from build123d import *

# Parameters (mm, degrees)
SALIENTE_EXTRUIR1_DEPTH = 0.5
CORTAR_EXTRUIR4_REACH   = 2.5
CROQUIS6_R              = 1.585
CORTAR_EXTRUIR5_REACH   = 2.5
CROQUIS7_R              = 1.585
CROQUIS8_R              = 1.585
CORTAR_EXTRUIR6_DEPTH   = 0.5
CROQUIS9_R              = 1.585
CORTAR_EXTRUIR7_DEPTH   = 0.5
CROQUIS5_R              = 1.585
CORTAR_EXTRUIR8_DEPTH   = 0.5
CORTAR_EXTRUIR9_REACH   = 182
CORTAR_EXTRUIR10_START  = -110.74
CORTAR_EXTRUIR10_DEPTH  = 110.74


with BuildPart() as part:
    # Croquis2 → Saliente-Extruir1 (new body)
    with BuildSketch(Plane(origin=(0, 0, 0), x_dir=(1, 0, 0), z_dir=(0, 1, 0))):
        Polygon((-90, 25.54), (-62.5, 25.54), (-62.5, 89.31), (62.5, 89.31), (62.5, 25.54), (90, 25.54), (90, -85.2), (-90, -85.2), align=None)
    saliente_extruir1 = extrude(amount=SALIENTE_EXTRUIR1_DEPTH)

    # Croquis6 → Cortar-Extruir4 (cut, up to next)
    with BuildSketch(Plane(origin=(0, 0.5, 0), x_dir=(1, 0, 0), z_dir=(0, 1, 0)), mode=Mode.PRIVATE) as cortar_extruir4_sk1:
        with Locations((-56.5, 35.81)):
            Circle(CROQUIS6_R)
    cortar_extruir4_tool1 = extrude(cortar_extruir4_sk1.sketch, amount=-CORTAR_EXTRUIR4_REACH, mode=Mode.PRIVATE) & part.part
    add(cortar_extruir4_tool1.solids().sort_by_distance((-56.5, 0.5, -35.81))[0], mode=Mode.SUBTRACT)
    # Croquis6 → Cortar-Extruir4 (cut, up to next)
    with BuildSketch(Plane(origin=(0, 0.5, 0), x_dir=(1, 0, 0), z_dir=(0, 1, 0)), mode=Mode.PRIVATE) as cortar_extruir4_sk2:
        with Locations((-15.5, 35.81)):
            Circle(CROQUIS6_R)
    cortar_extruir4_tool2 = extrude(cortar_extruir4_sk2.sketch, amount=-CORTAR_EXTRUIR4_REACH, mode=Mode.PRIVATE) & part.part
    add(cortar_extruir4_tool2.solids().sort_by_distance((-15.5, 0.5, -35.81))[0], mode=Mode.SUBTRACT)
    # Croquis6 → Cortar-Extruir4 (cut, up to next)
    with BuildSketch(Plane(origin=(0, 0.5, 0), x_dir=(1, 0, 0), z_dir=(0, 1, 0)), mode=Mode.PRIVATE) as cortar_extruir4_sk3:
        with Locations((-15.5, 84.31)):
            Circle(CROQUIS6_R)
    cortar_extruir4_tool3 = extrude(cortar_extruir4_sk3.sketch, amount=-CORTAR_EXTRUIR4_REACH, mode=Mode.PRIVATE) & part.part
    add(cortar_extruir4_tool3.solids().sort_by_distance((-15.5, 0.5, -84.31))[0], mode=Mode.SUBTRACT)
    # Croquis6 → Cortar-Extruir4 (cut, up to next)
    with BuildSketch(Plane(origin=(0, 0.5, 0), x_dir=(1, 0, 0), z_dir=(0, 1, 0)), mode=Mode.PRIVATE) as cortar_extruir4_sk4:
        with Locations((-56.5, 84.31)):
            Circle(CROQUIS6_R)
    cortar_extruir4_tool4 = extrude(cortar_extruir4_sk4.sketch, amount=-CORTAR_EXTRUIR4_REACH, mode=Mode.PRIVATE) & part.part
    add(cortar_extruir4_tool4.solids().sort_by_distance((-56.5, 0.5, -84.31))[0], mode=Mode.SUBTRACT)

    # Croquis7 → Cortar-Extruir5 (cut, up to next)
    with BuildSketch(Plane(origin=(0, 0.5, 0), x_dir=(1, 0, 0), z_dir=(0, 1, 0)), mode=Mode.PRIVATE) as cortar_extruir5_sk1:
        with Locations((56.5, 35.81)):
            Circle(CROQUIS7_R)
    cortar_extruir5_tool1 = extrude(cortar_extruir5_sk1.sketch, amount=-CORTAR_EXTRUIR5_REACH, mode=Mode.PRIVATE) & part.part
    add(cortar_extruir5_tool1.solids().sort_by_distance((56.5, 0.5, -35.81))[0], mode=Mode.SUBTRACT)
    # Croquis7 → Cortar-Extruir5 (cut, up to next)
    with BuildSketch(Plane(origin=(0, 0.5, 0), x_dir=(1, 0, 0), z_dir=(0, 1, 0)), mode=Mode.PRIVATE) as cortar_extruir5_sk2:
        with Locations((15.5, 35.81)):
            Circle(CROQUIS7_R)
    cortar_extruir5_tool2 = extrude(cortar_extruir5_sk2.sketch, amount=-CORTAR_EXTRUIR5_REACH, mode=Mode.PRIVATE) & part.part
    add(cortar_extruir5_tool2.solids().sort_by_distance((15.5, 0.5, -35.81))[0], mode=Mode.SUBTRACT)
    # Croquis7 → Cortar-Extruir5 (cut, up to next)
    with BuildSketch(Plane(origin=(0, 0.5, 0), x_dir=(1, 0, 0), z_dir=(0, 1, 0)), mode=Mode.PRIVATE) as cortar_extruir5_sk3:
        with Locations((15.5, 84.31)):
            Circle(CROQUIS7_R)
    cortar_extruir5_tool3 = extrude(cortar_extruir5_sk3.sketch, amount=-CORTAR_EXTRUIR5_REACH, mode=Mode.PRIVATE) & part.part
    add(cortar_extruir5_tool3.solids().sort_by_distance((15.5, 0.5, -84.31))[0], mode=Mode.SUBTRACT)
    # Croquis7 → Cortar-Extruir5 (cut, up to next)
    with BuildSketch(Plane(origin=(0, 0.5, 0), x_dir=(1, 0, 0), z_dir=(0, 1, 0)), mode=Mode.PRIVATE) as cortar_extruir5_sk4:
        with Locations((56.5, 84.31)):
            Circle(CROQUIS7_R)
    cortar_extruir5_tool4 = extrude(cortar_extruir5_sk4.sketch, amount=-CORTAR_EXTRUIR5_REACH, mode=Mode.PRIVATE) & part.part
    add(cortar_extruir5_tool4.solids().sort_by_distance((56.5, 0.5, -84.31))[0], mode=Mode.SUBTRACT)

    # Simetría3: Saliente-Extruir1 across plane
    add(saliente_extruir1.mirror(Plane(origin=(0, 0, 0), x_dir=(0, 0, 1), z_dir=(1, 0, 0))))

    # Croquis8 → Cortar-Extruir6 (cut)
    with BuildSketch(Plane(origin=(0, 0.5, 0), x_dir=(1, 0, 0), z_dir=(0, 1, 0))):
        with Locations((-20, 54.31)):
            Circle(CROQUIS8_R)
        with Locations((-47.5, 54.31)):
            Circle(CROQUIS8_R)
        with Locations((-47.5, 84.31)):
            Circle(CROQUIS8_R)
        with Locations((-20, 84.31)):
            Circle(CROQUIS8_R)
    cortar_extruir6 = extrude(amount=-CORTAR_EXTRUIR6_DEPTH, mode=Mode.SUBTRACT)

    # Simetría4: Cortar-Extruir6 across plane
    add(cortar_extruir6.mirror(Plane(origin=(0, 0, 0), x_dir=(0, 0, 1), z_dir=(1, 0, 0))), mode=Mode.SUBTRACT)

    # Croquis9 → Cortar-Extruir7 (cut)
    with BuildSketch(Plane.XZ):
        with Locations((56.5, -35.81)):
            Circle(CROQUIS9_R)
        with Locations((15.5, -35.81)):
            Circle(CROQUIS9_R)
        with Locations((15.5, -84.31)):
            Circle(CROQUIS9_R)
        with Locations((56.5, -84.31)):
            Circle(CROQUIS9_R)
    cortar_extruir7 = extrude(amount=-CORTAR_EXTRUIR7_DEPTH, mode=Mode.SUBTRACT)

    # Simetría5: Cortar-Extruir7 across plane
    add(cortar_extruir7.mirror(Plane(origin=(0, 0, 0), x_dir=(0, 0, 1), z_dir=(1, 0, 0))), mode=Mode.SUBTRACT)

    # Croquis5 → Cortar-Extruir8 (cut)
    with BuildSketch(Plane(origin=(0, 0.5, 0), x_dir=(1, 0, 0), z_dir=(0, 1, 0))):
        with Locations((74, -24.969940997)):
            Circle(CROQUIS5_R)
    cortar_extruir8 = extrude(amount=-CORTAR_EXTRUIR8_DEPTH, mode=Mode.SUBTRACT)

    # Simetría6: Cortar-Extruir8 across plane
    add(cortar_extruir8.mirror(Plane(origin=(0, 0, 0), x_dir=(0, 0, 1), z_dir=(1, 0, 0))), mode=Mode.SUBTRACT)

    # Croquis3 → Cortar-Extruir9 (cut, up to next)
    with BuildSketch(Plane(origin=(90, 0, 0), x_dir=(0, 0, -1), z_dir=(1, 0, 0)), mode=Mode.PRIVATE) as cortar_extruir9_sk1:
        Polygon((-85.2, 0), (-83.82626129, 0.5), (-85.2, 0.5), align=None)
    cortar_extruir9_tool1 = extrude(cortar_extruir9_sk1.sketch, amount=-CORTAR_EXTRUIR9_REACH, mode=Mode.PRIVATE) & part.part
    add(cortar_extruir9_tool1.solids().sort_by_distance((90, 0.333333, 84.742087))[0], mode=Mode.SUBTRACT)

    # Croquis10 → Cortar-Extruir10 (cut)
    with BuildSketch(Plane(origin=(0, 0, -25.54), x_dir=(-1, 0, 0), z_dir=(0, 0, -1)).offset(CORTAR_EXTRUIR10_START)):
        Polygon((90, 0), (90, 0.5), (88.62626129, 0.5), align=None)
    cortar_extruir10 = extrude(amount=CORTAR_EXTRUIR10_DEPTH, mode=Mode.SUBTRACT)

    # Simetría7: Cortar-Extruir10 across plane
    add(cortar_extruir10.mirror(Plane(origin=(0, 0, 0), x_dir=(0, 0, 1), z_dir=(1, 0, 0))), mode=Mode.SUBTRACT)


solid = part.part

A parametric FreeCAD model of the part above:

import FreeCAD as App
import Part
import Sketcher
from FreeCAD import Vector
Q = App.Units.Quantity


def add_polygon(sketch, points):
    """Adds a closed chain of lines whose ends are joined by coincident constraints."""
    first, n = sketch.GeometryCount, len(points)
    for a, b in zip(points, points[1:] + points[:1]):
        sketch.addGeometry(Part.LineSegment(App.Vector(*a, 0), App.Vector(*b, 0)), False)
    for i in range(n):
        sketch.addConstraint(Sketcher.Constraint("Coincident", first + i, 2, first + (i + 1) % n, 1))

doc = App.newDocument("Part")
body = doc.addObject("PartDesign::Body", "Body")

sketch1 = body.newObject("Sketcher::SketchObject", "Sketch")
sketch1.AttachmentSupport = (doc.getObject("XZ_Plane"), [""])
sketch1.MapMode = "FlatFace"
add_polygon(sketch1, [(-62.5, -25.54), (-90, -25.54), (-90, 85.2), (90, 85.2), (90, -25.54), (62.5, -25.54), (62.5, -89.31), (-62.5, -89.31)])
sketch1.addConstraint(Sketcher.Constraint("Horizontal", 0))
sketch1.addConstraint(Sketcher.Constraint("Vertical", 1))
sketch1.addConstraint(Sketcher.Constraint("Horizontal", 2))
sketch1.addConstraint(Sketcher.Constraint("Vertical", 3))
sketch1.addConstraint(Sketcher.Constraint("Horizontal", 4))
sketch1.addConstraint(Sketcher.Constraint("Vertical", 5))
sketch1.addConstraint(Sketcher.Constraint("Horizontal", 6))
sketch1.addConstraint(Sketcher.Constraint("Vertical", 7))
sketch1.addConstraint(Sketcher.Constraint("Symmetric", 0, 2, 3, 2, -2))
sketch1.addConstraint(Sketcher.Constraint("Equal", 0, 4))
sketch1.addConstraint(Sketcher.Constraint("DistanceX", 2, 1, 2, 2, 180.0))
sketch1.addConstraint(Sketcher.Constraint("DistanceX", 6, 2, 6, 1, 125.0))
sketch1.addConstraint(Sketcher.Constraint("DistanceY", 1, 1, 1, 2, 110.74))
sketch1.addConstraint(Sketcher.Constraint("DistanceY", 5, 2, 5, 1, 63.77))
sketch1.addConstraint(Sketcher.Constraint("DistanceY", -1, 1, 1, 2, 85.2))
pad1 = body.newObject("PartDesign::Pad", "Pad")
pad1.Profile = sketch1
pad1.Length = 0.5
pad1.Reversed = True

sketch2 = body.newObject("Sketcher::SketchObject", "Sketch001")
sketch2.AttachmentSupport = (doc.getObject("XZ_Plane"), [""])
sketch2.MapMode = "FlatFace"
sketch2.AttachmentOffset = App.Placement(Vector(0, 0, -0.5), App.Rotation())
sketch2.addGeometry(Part.Circle(Vector(-56.5, -35.81, 0), Vector(0, 0, 1), 1.585), False)
sketch2.addConstraint(Sketcher.Constraint("Diameter", 0, 3.17))
sketch2.addConstraint(Sketcher.Constraint("DistanceX", 0, 3, -1, 1, 56.5))
sketch2.addConstraint(Sketcher.Constraint("DistanceY", 0, 3, -1, 1, 35.81))
pocket1 = body.newObject("PartDesign::Pocket", "Pocket")
pocket1.Profile = sketch2
pocket1.Type = "UpToFirst"
pocket1.Reversed = True

sketch3 = body.newObject("Sketcher::SketchObject", "Sketch002")
sketch3.AttachmentSupport = (doc.getObject("XZ_Plane"), [""])
sketch3.MapMode = "FlatFace"
sketch3.AttachmentOffset = App.Placement(Vector(0, 0, -0.5), App.Rotation())
sketch3.addGeometry(Part.Circle(Vector(-15.5, -35.81, 0), Vector(0, 0, 1), 1.585), False)
sketch3.addConstraint(Sketcher.Constraint("Diameter", 0, 3.17))
sketch3.addConstraint(Sketcher.Constraint("DistanceX", 0, 3, -1, 1, 15.5))
sketch3.addConstraint(Sketcher.Constraint("DistanceY", 0, 3, -1, 1, 35.81))
pocket2 = body.newObject("PartDesign::Pocket", "Pocket001")
pocket2.Profile = sketch3
pocket2.Type = "UpToFirst"
pocket2.Reversed = True

sketch4 = body.newObject("Sketcher::SketchObject", "Sketch003")
sketch4.AttachmentSupport = (doc.getObject("XZ_Plane"), [""])
sketch4.MapMode = "FlatFace"
sketch4.AttachmentOffset = App.Placement(Vector(0, 0, -0.5), App.Rotation())
sketch4.addGeometry(Part.Circle(Vector(-15.5, -84.31, 0), Vector(0, 0, 1), 1.585), False)
sketch4.addConstraint(Sketcher.Constraint("Diameter", 0, 3.17))
sketch4.addConstraint(Sketcher.Constraint("DistanceX", 0, 3, -1, 1, 15.5))
sketch4.addConstraint(Sketcher.Constraint("DistanceY", 0, 3, -1, 1, 84.31))
pocket3 = body.newObject("PartDesign::Pocket", "Pocket002")
pocket3.Profile = sketch4
pocket3.Type = "UpToFirst"
pocket3.Reversed = True

sketch5 = body.newObject("Sketcher::SketchObject", "Sketch004")
sketch5.AttachmentSupport = (doc.getObject("XZ_Plane"), [""])
sketch5.MapMode = "FlatFace"
sketch5.AttachmentOffset = App.Placement(Vector(0, 0, -0.5), App.Rotation())
sketch5.addGeometry(Part.Circle(Vector(-56.5, -84.31, 0), Vector(0, 0, 1), 1.585), False)
sketch5.addConstraint(Sketcher.Constraint("Diameter", 0, 3.17))
sketch5.addConstraint(Sketcher.Constraint("DistanceX", 0, 3, -1, 1, 56.5))
sketch5.addConstraint(Sketcher.Constraint("DistanceY", 0, 3, -1, 1, 84.31))
pocket4 = body.newObject("PartDesign::Pocket", "Pocket003")
pocket4.Profile = sketch5
pocket4.Type = "UpToFirst"
pocket4.Reversed = True

sketch6 = body.newObject("Sketcher::SketchObject", "Sketch005")
sketch6.AttachmentSupport = (doc.getObject("XZ_Plane"), [""])
sketch6.MapMode = "FlatFace"
sketch6.AttachmentOffset = App.Placement(Vector(0, 0, -0.5), App.Rotation())
sketch6.addGeometry(Part.Circle(Vector(56.5, -35.81, 0), Vector(0, 0, 1), 1.585), False)
sketch6.addConstraint(Sketcher.Constraint("Diameter", 0, 3.17))
sketch6.addConstraint(Sketcher.Constraint("DistanceX", -1, 1, 0, 3, 56.5))
sketch6.addConstraint(Sketcher.Constraint("DistanceY", 0, 3, -1, 1, 35.81))
pocket5 = body.newObject("PartDesign::Pocket", "Pocket004")
pocket5.Profile = sketch6
pocket5.Type = "UpToFirst"
pocket5.Reversed = True

sketch7 = body.newObject("Sketcher::SketchObject", "Sketch006")
sketch7.AttachmentSupport = (doc.getObject("XZ_Plane"), [""])
sketch7.MapMode = "FlatFace"
sketch7.AttachmentOffset = App.Placement(Vector(0, 0, -0.5), App.Rotation())
sketch7.addGeometry(Part.Circle(Vector(15.5, -35.81, 0), Vector(0, 0, 1), 1.585), False)
sketch7.addConstraint(Sketcher.Constraint("Diameter", 0, 3.17))
sketch7.addConstraint(Sketcher.Constraint("DistanceX", -1, 1, 0, 3, 15.5))
sketch7.addConstraint(Sketcher.Constraint("DistanceY", 0, 3, -1, 1, 35.81))
pocket6 = body.newObject("PartDesign::Pocket", "Pocket005")
pocket6.Profile = sketch7
pocket6.Type = "UpToFirst"
pocket6.Reversed = True

sketch8 = body.newObject("Sketcher::SketchObject", "Sketch007")
sketch8.AttachmentSupport = (doc.getObject("XZ_Plane"), [""])
sketch8.MapMode = "FlatFace"
sketch8.AttachmentOffset = App.Placement(Vector(0, 0, -0.5), App.Rotation())
sketch8.addGeometry(Part.Circle(Vector(15.5, -84.31, 0), Vector(0, 0, 1), 1.585), False)
sketch8.addConstraint(Sketcher.Constraint("Diameter", 0, 3.17))
sketch8.addConstraint(Sketcher.Constraint("DistanceX", -1, 1, 0, 3, 15.5))
sketch8.addConstraint(Sketcher.Constraint("DistanceY", 0, 3, -1, 1, 84.31))
pocket7 = body.newObject("PartDesign::Pocket", "Pocket006")
pocket7.Profile = sketch8
pocket7.Type = "UpToFirst"
pocket7.Reversed = True

sketch9 = body.newObject("Sketcher::SketchObject", "Sketch008")
sketch9.AttachmentSupport = (doc.getObject("XZ_Plane"), [""])
sketch9.MapMode = "FlatFace"
sketch9.AttachmentOffset = App.Placement(Vector(0, 0, -0.5), App.Rotation())
sketch9.addGeometry(Part.Circle(Vector(56.5, -84.31, 0), Vector(0, 0, 1), 1.585), False)
sketch9.addConstraint(Sketcher.Constraint("Diameter", 0, 3.17))
sketch9.addConstraint(Sketcher.Constraint("DistanceX", -1, 1, 0, 3, 56.5))
sketch9.addConstraint(Sketcher.Constraint("DistanceY", 0, 3, -1, 1, 84.31))
pocket8 = body.newObject("PartDesign::Pocket", "Pocket007")
pocket8.Profile = sketch9
pocket8.Type = "UpToFirst"
pocket8.Reversed = True
doc.recompute()

mirrored = body.newObject("PartDesign::Mirrored", "Mirrored")
mirrored.Originals = [pad1]
mirrored.MirrorPlane = (doc.getObject("YZ_Plane"), [""])
body.Tip = mirrored

sketch10 = body.newObject("Sketcher::SketchObject", "Sketch009")
sketch10.AttachmentSupport = (doc.getObject("XZ_Plane"), [""])
sketch10.MapMode = "FlatFace"
sketch10.AttachmentOffset = App.Placement(Vector(0, 0, -0.5), App.Rotation())
sketch10.addGeometry(Part.Circle(Vector(-20, -54.31, 0), Vector(0, 0, 1), 1.585), False)
sketch10.addGeometry(Part.Circle(Vector(-47.5, -54.31, 0), Vector(0, 0, 1), 1.585), False)
sketch10.addGeometry(Part.Circle(Vector(-47.5, -84.31, 0), Vector(0, 0, 1), 1.585), False)
sketch10.addGeometry(Part.Circle(Vector(-20, -84.31, 0), Vector(0, 0, 1), 1.585), False)
sketch10.addConstraint(Sketcher.Constraint("Equal", 0, 1))
sketch10.addConstraint(Sketcher.Constraint("Equal", 1, 2))
sketch10.addConstraint(Sketcher.Constraint("Equal", 2, 3))
sketch10.addConstraint(Sketcher.Constraint("Horizontal", 0, 3, 1, 3))
sketch10.addConstraint(Sketcher.Constraint("Horizontal", 2, 3, 3, 3))
sketch10.addConstraint(Sketcher.Constraint("Vertical", 1, 3, 2, 3))
sketch10.addConstraint(Sketcher.Constraint("Vertical", 0, 3, 3, 3))
sketch10.addConstraint(Sketcher.Constraint("Diameter", 0, 3.17))
sketch10.addConstraint(Sketcher.Constraint("DistanceX", 0, 3, -1, 1, 20.0))
sketch10.addConstraint(Sketcher.Constraint("DistanceY", 2, 3, 1, 3, 30.0))
sketch10.addConstraint(Sketcher.Constraint("DistanceX", 1, 3, -1, 1, 47.5))
sketch10.addConstraint(Sketcher.Constraint("DistanceY", 0, 3, -1, 1, 54.31))
pocket9 = body.newObject("PartDesign::Pocket", "Pocket008")
pocket9.Profile = sketch10
pocket9.Length = 0.5
pocket9.Reversed = True
doc.recompute()

mirrored2 = body.newObject("PartDesign::Mirrored", "Mirrored001")
mirrored2.Originals = [pocket9]
mirrored2.MirrorPlane = (doc.getObject("YZ_Plane"), [""])
body.Tip = mirrored2

sketch11 = body.newObject("Sketcher::SketchObject", "Sketch010")
sketch11.AttachmentSupport = (doc.getObject("XZ_Plane"), [""])
sketch11.MapMode = "FlatFace"
sketch11.addGeometry(Part.Circle(Vector(56.5, -35.81, 0), Vector(0, 0, 1), 1.585), False)
sketch11.addGeometry(Part.Circle(Vector(15.5, -35.81, 0), Vector(0, 0, 1), 1.585), False)
sketch11.addGeometry(Part.Circle(Vector(15.5, -84.31, 0), Vector(0, 0, 1), 1.585), False)
sketch11.addGeometry(Part.Circle(Vector(56.5, -84.31, 0), Vector(0, 0, 1), 1.585), False)
sketch11.addConstraint(Sketcher.Constraint("Equal", 0, 1))
sketch11.addConstraint(Sketcher.Constraint("Equal", 1, 2))
sketch11.addConstraint(Sketcher.Constraint("Equal", 2, 3))
sketch11.addConstraint(Sketcher.Constraint("Horizontal", 0, 3, 1, 3))
sketch11.addConstraint(Sketcher.Constraint("Horizontal", 2, 3, 3, 3))
sketch11.addConstraint(Sketcher.Constraint("Vertical", 1, 3, 2, 3))
sketch11.addConstraint(Sketcher.Constraint("Vertical", 0, 3, 3, 3))
sketch11.addConstraint(Sketcher.Constraint("Diameter", 0, 3.17))
sketch11.addConstraint(Sketcher.Constraint("DistanceX", 1, 3, 0, 3, 41.0))
sketch11.addConstraint(Sketcher.Constraint("DistanceX", -1, 1, 0, 3, 56.5))
sketch11.addConstraint(Sketcher.Constraint("DistanceY", 2, 3, 1, 3, 48.5))
sketch11.addConstraint(Sketcher.Constraint("DistanceY", 0, 3, -1, 1, 35.81))
pocket10 = body.newObject("PartDesign::Pocket", "Pocket009")
pocket10.Profile = sketch11
pocket10.Length = 0.5
doc.recompute()

mirrored3 = body.newObject("PartDesign::Mirrored", "Mirrored002")
mirrored3.Originals = [pocket10]
mirrored3.MirrorPlane = (doc.getObject("YZ_Plane"), [""])
body.Tip = mirrored3

sketch12 = body.newObject("Sketcher::SketchObject", "Sketch011")
sketch12.AttachmentSupport = (doc.getObject("XZ_Plane"), [""])
sketch12.MapMode = "FlatFace"
sketch12.AttachmentOffset = App.Placement(Vector(0, 0, -0.5), App.Rotation())
sketch12.addGeometry(Part.Circle(Vector(74, 24.969941, 0), Vector(0, 0, 1), 1.585), False)
sketch12.addConstraint(Sketcher.Constraint("Diameter", 0, 3.17))
sketch12.addConstraint(Sketcher.Constraint("DistanceX", -1, 1, 0, 3, 74.0))
sketch12.addConstraint(Sketcher.Constraint("DistanceY", -1, 1, 0, 3, 24.969941))
pocket11 = body.newObject("PartDesign::Pocket", "Pocket010")
pocket11.Profile = sketch12
pocket11.Length = 0.5
pocket11.Reversed = True
doc.recompute()

mirrored4 = body.newObject("PartDesign::Mirrored", "Mirrored003")
mirrored4.Originals = [pocket11]
mirrored4.MirrorPlane = (doc.getObject("YZ_Plane"), [""])
body.Tip = mirrored4

sketch13 = body.newObject("Sketcher::SketchObject", "Sketch012")
sketch13.AttachmentSupport = (doc.getObject("YZ_Plane"), [""])
sketch13.MapMode = "FlatFace"
sketch13.AttachmentOffset = App.Placement(Vector(0, 0, 90), App.Rotation())
add_polygon(sketch13, [(0, 85.2), (0.5, 83.826261), (0.5, 85.2)])
sketch13.addConstraint(Sketcher.Constraint("Vertical", 1))
sketch13.addConstraint(Sketcher.Constraint("Horizontal", 2))
sketch13.addConstraint(Sketcher.Constraint("PointOnObject", 2, 2, -2))
sketch13.addConstraint(Sketcher.Constraint("Angle", 0, Q("-70 deg")))
sketch13.addConstraint(Sketcher.Constraint("DistanceX", 2, 2, 2, 1, 0.5))
sketch13.addConstraint(Sketcher.Constraint("DistanceY", -1, 1, 1, 2, 85.2))
pocket12 = body.newObject("PartDesign::Pocket", "Pocket011")
pocket12.Profile = sketch13
pocket12.Type = "UpToFirst"

sketch14 = body.newObject("Sketcher::SketchObject", "Sketch013")
sketch14.AttachmentSupport = (doc.getObject("XY_Plane"), [""])
sketch14.MapMode = "FlatFace"
sketch14.AttachmentOffset = App.Placement(Vector(0, 0, 85.2), App.Rotation())
add_polygon(sketch14, [(-90, 0), (-90, 0.5), (-88.626261, 0.5)])
sketch14.addConstraint(Sketcher.Constraint("Vertical", 0))
sketch14.addConstraint(Sketcher.Constraint("Horizontal", 1))
sketch14.addConstraint(Sketcher.Constraint("PointOnObject", 2, 2, -1))
sketch14.addConstraint(Sketcher.Constraint("Angle", 2, Q("-160 deg")))
sketch14.addConstraint(Sketcher.Constraint("DistanceY", 0, 1, 0, 2, 0.5))
sketch14.addConstraint(Sketcher.Constraint("DistanceX", 0, 2, -1, 1, 90.0))
pocket13 = body.newObject("PartDesign::Pocket", "Pocket012")
pocket13.Profile = sketch14
pocket13.Length = 110.74
doc.recompute()

mirrored5 = body.newObject("PartDesign::Mirrored", "Mirrored004")
mirrored5.Originals = [pocket13]
mirrored5.MirrorPlane = (doc.getObject("YZ_Plane"), [""])
body.Tip = mirrored5

doc.recompute()
